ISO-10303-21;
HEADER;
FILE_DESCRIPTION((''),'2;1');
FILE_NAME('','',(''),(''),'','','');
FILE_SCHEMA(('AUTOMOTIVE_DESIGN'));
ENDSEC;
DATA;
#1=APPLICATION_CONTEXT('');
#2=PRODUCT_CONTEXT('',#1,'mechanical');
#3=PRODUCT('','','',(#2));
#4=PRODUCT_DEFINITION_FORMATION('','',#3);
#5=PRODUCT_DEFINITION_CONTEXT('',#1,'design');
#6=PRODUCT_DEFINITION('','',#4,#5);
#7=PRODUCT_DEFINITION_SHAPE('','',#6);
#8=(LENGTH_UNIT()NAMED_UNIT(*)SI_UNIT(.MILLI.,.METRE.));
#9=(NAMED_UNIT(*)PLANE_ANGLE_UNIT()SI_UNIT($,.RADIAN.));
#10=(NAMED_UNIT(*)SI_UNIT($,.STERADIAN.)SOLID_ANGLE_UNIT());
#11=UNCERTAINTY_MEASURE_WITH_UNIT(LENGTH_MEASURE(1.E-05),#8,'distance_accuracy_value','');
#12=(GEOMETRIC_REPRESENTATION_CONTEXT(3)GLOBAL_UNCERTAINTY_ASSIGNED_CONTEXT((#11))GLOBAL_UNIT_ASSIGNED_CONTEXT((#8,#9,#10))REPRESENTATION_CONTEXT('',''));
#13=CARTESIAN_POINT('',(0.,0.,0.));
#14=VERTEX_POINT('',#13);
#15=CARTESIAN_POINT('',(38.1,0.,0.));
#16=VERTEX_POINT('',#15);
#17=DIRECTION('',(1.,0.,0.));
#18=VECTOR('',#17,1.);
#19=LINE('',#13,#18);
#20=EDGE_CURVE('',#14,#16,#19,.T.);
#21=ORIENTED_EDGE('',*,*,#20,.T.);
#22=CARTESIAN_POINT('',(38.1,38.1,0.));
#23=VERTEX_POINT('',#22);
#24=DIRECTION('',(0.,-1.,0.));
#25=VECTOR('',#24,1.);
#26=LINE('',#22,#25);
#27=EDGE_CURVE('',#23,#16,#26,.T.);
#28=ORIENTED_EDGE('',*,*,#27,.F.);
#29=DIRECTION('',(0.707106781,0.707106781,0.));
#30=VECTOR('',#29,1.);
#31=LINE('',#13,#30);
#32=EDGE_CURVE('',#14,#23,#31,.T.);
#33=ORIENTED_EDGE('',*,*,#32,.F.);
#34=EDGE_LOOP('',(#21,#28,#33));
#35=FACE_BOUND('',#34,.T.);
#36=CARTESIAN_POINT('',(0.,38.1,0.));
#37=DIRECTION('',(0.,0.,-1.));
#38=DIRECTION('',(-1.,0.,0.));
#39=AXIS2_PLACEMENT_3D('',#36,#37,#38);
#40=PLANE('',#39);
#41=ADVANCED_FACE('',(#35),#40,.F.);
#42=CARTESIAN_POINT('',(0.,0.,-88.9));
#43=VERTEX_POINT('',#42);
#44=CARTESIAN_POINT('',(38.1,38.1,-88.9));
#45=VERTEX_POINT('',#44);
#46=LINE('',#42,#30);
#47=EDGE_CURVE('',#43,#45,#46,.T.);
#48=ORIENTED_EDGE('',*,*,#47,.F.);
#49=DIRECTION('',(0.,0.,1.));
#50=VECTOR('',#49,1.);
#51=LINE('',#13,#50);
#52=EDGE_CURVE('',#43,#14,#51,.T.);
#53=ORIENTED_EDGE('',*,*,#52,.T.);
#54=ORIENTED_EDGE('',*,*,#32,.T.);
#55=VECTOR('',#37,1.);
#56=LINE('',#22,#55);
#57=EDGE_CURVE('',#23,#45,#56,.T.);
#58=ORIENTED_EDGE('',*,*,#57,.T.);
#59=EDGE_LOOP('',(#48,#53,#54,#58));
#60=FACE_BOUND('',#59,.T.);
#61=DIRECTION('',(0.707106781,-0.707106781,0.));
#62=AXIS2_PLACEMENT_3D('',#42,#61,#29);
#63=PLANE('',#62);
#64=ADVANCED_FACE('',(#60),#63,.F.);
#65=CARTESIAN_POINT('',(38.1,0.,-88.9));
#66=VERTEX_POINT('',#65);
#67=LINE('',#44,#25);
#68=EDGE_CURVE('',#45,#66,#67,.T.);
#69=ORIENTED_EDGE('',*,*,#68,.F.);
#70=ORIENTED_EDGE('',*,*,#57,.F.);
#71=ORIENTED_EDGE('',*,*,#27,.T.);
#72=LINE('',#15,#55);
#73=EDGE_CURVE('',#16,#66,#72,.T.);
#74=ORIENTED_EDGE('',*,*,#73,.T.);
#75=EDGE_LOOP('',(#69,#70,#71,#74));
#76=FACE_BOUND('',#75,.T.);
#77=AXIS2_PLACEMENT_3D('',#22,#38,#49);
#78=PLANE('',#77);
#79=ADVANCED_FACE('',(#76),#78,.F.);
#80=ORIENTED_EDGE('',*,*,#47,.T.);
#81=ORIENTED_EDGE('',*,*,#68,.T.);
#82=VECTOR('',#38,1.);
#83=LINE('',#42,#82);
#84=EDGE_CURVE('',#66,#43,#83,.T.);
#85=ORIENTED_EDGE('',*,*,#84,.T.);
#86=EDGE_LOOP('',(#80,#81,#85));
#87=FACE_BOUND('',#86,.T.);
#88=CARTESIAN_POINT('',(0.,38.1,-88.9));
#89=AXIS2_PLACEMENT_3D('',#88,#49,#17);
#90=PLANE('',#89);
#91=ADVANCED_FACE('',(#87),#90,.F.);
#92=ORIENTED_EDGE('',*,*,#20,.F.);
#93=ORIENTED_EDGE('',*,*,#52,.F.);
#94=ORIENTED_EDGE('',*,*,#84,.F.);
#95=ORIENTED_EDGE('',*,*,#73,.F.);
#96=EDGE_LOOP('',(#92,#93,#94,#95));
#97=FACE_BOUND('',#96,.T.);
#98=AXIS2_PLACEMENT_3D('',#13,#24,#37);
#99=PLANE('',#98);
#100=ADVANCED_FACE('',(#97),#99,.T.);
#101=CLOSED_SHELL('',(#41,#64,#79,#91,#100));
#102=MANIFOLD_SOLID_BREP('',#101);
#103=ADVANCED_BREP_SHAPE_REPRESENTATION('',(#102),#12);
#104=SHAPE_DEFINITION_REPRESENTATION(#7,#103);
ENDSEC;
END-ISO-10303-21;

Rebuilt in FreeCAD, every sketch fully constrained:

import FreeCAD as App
import Part
import Sketcher

V = App.Vector
Q = App.Units.Quantity


def add_polygon(sketch, points):
    """Adds a closed chain of lines whose ends are joined by coincident constraints."""
    first, n = sketch.GeometryCount, len(points)
    for a, b in zip(points, points[1:] + points[:1]):
        sketch.addGeometry(Part.LineSegment(App.Vector(*a, 0), App.Vector(*b, 0)), False)
    for i in range(n):
        sketch.addConstraint(Sketcher.Constraint("Coincident", first + i, 2, first + (i + 1) % n, 1))

doc = App.newDocument("Part")
params = doc.addObject("Spreadsheet::Sheet", "Params")
for row, (alias, value) in enumerate([
    ("sketch1_width", "1.5 in"),
    ("sketch1_height", "3.5 in"),
    ("pad1_length", "1.5 in"),
    ("sketch2_width", "1.5 in"),
], start=1):
    params.set(f"A{row}", alias)
    params.set(f"B{row}", "=" + value)
    params.setAlias(f"B{row}", alias)

body = doc.addObject("PartDesign::Body", "Body")

sketch1 = body.newObject("Sketcher::SketchObject", "Sketch")
sketch1.AttachmentSupport = (doc.getObject("XZ_Plane"), [""])
sketch1.MapMode = "FlatFace"
add_polygon(sketch1, [(0, -89), (0, 0), (38, 0), (38, -89)])
sketch1.addConstraint([
    Sketcher.Constraint("Vertical", 0),
    Sketcher.Constraint("Horizontal", 1),
    Sketcher.Constraint("Vertical", 2),
    Sketcher.Constraint("Horizontal", 3),
    Sketcher.Constraint("Coincident", 0, 2, -1, 1),
    Sketcher.Constraint("DistanceX", 1, 1, 1, 2, Q("1.5 in")),
    Sketcher.Constraint("DistanceY", 0, 1, 0, 2, Q("3.5 in")),
])
sketch1.setExpression("Constraints[9]", "Params.sketch1_width")
sketch1.setExpression("Constraints[10]", "Params.sketch1_height")
pad1 = body.newObject("PartDesign::Pad", "Pad")
pad1.Profile = sketch1
pad1.setExpression("Length", "Params.pad1_length")
pad1.Reversed = True

sketch2 = body.newObject("Sketcher::SketchObject", "Sketch001")
sketch2.AttachmentSupport = (doc.getObject("XY_Plane"), [""])
sketch2.MapMode = "FlatFace"
add_polygon(sketch2, [(0, 0), (38, 38), (0, 38)])
sketch2.addConstraint([
    Sketcher.Constraint("Horizontal", 1),
    Sketcher.Constraint("Vertical", 2),
    Sketcher.Constraint("Coincident", 2, 2, -1, 1),
    Sketcher.Constraint("Equal", 1, 2),
    Sketcher.Constraint("DistanceX", 1, 2, 1, 1, Q("1.5 in")),
])
sketch2.setExpression("Constraints[7]", "Params.sketch2_width")
pocket1 = body.newObject("PartDesign::Pocket", "Pocket")
pocket1.Profile = sketch2
pocket1.Type = "ThroughAll"

doc.recompute()
